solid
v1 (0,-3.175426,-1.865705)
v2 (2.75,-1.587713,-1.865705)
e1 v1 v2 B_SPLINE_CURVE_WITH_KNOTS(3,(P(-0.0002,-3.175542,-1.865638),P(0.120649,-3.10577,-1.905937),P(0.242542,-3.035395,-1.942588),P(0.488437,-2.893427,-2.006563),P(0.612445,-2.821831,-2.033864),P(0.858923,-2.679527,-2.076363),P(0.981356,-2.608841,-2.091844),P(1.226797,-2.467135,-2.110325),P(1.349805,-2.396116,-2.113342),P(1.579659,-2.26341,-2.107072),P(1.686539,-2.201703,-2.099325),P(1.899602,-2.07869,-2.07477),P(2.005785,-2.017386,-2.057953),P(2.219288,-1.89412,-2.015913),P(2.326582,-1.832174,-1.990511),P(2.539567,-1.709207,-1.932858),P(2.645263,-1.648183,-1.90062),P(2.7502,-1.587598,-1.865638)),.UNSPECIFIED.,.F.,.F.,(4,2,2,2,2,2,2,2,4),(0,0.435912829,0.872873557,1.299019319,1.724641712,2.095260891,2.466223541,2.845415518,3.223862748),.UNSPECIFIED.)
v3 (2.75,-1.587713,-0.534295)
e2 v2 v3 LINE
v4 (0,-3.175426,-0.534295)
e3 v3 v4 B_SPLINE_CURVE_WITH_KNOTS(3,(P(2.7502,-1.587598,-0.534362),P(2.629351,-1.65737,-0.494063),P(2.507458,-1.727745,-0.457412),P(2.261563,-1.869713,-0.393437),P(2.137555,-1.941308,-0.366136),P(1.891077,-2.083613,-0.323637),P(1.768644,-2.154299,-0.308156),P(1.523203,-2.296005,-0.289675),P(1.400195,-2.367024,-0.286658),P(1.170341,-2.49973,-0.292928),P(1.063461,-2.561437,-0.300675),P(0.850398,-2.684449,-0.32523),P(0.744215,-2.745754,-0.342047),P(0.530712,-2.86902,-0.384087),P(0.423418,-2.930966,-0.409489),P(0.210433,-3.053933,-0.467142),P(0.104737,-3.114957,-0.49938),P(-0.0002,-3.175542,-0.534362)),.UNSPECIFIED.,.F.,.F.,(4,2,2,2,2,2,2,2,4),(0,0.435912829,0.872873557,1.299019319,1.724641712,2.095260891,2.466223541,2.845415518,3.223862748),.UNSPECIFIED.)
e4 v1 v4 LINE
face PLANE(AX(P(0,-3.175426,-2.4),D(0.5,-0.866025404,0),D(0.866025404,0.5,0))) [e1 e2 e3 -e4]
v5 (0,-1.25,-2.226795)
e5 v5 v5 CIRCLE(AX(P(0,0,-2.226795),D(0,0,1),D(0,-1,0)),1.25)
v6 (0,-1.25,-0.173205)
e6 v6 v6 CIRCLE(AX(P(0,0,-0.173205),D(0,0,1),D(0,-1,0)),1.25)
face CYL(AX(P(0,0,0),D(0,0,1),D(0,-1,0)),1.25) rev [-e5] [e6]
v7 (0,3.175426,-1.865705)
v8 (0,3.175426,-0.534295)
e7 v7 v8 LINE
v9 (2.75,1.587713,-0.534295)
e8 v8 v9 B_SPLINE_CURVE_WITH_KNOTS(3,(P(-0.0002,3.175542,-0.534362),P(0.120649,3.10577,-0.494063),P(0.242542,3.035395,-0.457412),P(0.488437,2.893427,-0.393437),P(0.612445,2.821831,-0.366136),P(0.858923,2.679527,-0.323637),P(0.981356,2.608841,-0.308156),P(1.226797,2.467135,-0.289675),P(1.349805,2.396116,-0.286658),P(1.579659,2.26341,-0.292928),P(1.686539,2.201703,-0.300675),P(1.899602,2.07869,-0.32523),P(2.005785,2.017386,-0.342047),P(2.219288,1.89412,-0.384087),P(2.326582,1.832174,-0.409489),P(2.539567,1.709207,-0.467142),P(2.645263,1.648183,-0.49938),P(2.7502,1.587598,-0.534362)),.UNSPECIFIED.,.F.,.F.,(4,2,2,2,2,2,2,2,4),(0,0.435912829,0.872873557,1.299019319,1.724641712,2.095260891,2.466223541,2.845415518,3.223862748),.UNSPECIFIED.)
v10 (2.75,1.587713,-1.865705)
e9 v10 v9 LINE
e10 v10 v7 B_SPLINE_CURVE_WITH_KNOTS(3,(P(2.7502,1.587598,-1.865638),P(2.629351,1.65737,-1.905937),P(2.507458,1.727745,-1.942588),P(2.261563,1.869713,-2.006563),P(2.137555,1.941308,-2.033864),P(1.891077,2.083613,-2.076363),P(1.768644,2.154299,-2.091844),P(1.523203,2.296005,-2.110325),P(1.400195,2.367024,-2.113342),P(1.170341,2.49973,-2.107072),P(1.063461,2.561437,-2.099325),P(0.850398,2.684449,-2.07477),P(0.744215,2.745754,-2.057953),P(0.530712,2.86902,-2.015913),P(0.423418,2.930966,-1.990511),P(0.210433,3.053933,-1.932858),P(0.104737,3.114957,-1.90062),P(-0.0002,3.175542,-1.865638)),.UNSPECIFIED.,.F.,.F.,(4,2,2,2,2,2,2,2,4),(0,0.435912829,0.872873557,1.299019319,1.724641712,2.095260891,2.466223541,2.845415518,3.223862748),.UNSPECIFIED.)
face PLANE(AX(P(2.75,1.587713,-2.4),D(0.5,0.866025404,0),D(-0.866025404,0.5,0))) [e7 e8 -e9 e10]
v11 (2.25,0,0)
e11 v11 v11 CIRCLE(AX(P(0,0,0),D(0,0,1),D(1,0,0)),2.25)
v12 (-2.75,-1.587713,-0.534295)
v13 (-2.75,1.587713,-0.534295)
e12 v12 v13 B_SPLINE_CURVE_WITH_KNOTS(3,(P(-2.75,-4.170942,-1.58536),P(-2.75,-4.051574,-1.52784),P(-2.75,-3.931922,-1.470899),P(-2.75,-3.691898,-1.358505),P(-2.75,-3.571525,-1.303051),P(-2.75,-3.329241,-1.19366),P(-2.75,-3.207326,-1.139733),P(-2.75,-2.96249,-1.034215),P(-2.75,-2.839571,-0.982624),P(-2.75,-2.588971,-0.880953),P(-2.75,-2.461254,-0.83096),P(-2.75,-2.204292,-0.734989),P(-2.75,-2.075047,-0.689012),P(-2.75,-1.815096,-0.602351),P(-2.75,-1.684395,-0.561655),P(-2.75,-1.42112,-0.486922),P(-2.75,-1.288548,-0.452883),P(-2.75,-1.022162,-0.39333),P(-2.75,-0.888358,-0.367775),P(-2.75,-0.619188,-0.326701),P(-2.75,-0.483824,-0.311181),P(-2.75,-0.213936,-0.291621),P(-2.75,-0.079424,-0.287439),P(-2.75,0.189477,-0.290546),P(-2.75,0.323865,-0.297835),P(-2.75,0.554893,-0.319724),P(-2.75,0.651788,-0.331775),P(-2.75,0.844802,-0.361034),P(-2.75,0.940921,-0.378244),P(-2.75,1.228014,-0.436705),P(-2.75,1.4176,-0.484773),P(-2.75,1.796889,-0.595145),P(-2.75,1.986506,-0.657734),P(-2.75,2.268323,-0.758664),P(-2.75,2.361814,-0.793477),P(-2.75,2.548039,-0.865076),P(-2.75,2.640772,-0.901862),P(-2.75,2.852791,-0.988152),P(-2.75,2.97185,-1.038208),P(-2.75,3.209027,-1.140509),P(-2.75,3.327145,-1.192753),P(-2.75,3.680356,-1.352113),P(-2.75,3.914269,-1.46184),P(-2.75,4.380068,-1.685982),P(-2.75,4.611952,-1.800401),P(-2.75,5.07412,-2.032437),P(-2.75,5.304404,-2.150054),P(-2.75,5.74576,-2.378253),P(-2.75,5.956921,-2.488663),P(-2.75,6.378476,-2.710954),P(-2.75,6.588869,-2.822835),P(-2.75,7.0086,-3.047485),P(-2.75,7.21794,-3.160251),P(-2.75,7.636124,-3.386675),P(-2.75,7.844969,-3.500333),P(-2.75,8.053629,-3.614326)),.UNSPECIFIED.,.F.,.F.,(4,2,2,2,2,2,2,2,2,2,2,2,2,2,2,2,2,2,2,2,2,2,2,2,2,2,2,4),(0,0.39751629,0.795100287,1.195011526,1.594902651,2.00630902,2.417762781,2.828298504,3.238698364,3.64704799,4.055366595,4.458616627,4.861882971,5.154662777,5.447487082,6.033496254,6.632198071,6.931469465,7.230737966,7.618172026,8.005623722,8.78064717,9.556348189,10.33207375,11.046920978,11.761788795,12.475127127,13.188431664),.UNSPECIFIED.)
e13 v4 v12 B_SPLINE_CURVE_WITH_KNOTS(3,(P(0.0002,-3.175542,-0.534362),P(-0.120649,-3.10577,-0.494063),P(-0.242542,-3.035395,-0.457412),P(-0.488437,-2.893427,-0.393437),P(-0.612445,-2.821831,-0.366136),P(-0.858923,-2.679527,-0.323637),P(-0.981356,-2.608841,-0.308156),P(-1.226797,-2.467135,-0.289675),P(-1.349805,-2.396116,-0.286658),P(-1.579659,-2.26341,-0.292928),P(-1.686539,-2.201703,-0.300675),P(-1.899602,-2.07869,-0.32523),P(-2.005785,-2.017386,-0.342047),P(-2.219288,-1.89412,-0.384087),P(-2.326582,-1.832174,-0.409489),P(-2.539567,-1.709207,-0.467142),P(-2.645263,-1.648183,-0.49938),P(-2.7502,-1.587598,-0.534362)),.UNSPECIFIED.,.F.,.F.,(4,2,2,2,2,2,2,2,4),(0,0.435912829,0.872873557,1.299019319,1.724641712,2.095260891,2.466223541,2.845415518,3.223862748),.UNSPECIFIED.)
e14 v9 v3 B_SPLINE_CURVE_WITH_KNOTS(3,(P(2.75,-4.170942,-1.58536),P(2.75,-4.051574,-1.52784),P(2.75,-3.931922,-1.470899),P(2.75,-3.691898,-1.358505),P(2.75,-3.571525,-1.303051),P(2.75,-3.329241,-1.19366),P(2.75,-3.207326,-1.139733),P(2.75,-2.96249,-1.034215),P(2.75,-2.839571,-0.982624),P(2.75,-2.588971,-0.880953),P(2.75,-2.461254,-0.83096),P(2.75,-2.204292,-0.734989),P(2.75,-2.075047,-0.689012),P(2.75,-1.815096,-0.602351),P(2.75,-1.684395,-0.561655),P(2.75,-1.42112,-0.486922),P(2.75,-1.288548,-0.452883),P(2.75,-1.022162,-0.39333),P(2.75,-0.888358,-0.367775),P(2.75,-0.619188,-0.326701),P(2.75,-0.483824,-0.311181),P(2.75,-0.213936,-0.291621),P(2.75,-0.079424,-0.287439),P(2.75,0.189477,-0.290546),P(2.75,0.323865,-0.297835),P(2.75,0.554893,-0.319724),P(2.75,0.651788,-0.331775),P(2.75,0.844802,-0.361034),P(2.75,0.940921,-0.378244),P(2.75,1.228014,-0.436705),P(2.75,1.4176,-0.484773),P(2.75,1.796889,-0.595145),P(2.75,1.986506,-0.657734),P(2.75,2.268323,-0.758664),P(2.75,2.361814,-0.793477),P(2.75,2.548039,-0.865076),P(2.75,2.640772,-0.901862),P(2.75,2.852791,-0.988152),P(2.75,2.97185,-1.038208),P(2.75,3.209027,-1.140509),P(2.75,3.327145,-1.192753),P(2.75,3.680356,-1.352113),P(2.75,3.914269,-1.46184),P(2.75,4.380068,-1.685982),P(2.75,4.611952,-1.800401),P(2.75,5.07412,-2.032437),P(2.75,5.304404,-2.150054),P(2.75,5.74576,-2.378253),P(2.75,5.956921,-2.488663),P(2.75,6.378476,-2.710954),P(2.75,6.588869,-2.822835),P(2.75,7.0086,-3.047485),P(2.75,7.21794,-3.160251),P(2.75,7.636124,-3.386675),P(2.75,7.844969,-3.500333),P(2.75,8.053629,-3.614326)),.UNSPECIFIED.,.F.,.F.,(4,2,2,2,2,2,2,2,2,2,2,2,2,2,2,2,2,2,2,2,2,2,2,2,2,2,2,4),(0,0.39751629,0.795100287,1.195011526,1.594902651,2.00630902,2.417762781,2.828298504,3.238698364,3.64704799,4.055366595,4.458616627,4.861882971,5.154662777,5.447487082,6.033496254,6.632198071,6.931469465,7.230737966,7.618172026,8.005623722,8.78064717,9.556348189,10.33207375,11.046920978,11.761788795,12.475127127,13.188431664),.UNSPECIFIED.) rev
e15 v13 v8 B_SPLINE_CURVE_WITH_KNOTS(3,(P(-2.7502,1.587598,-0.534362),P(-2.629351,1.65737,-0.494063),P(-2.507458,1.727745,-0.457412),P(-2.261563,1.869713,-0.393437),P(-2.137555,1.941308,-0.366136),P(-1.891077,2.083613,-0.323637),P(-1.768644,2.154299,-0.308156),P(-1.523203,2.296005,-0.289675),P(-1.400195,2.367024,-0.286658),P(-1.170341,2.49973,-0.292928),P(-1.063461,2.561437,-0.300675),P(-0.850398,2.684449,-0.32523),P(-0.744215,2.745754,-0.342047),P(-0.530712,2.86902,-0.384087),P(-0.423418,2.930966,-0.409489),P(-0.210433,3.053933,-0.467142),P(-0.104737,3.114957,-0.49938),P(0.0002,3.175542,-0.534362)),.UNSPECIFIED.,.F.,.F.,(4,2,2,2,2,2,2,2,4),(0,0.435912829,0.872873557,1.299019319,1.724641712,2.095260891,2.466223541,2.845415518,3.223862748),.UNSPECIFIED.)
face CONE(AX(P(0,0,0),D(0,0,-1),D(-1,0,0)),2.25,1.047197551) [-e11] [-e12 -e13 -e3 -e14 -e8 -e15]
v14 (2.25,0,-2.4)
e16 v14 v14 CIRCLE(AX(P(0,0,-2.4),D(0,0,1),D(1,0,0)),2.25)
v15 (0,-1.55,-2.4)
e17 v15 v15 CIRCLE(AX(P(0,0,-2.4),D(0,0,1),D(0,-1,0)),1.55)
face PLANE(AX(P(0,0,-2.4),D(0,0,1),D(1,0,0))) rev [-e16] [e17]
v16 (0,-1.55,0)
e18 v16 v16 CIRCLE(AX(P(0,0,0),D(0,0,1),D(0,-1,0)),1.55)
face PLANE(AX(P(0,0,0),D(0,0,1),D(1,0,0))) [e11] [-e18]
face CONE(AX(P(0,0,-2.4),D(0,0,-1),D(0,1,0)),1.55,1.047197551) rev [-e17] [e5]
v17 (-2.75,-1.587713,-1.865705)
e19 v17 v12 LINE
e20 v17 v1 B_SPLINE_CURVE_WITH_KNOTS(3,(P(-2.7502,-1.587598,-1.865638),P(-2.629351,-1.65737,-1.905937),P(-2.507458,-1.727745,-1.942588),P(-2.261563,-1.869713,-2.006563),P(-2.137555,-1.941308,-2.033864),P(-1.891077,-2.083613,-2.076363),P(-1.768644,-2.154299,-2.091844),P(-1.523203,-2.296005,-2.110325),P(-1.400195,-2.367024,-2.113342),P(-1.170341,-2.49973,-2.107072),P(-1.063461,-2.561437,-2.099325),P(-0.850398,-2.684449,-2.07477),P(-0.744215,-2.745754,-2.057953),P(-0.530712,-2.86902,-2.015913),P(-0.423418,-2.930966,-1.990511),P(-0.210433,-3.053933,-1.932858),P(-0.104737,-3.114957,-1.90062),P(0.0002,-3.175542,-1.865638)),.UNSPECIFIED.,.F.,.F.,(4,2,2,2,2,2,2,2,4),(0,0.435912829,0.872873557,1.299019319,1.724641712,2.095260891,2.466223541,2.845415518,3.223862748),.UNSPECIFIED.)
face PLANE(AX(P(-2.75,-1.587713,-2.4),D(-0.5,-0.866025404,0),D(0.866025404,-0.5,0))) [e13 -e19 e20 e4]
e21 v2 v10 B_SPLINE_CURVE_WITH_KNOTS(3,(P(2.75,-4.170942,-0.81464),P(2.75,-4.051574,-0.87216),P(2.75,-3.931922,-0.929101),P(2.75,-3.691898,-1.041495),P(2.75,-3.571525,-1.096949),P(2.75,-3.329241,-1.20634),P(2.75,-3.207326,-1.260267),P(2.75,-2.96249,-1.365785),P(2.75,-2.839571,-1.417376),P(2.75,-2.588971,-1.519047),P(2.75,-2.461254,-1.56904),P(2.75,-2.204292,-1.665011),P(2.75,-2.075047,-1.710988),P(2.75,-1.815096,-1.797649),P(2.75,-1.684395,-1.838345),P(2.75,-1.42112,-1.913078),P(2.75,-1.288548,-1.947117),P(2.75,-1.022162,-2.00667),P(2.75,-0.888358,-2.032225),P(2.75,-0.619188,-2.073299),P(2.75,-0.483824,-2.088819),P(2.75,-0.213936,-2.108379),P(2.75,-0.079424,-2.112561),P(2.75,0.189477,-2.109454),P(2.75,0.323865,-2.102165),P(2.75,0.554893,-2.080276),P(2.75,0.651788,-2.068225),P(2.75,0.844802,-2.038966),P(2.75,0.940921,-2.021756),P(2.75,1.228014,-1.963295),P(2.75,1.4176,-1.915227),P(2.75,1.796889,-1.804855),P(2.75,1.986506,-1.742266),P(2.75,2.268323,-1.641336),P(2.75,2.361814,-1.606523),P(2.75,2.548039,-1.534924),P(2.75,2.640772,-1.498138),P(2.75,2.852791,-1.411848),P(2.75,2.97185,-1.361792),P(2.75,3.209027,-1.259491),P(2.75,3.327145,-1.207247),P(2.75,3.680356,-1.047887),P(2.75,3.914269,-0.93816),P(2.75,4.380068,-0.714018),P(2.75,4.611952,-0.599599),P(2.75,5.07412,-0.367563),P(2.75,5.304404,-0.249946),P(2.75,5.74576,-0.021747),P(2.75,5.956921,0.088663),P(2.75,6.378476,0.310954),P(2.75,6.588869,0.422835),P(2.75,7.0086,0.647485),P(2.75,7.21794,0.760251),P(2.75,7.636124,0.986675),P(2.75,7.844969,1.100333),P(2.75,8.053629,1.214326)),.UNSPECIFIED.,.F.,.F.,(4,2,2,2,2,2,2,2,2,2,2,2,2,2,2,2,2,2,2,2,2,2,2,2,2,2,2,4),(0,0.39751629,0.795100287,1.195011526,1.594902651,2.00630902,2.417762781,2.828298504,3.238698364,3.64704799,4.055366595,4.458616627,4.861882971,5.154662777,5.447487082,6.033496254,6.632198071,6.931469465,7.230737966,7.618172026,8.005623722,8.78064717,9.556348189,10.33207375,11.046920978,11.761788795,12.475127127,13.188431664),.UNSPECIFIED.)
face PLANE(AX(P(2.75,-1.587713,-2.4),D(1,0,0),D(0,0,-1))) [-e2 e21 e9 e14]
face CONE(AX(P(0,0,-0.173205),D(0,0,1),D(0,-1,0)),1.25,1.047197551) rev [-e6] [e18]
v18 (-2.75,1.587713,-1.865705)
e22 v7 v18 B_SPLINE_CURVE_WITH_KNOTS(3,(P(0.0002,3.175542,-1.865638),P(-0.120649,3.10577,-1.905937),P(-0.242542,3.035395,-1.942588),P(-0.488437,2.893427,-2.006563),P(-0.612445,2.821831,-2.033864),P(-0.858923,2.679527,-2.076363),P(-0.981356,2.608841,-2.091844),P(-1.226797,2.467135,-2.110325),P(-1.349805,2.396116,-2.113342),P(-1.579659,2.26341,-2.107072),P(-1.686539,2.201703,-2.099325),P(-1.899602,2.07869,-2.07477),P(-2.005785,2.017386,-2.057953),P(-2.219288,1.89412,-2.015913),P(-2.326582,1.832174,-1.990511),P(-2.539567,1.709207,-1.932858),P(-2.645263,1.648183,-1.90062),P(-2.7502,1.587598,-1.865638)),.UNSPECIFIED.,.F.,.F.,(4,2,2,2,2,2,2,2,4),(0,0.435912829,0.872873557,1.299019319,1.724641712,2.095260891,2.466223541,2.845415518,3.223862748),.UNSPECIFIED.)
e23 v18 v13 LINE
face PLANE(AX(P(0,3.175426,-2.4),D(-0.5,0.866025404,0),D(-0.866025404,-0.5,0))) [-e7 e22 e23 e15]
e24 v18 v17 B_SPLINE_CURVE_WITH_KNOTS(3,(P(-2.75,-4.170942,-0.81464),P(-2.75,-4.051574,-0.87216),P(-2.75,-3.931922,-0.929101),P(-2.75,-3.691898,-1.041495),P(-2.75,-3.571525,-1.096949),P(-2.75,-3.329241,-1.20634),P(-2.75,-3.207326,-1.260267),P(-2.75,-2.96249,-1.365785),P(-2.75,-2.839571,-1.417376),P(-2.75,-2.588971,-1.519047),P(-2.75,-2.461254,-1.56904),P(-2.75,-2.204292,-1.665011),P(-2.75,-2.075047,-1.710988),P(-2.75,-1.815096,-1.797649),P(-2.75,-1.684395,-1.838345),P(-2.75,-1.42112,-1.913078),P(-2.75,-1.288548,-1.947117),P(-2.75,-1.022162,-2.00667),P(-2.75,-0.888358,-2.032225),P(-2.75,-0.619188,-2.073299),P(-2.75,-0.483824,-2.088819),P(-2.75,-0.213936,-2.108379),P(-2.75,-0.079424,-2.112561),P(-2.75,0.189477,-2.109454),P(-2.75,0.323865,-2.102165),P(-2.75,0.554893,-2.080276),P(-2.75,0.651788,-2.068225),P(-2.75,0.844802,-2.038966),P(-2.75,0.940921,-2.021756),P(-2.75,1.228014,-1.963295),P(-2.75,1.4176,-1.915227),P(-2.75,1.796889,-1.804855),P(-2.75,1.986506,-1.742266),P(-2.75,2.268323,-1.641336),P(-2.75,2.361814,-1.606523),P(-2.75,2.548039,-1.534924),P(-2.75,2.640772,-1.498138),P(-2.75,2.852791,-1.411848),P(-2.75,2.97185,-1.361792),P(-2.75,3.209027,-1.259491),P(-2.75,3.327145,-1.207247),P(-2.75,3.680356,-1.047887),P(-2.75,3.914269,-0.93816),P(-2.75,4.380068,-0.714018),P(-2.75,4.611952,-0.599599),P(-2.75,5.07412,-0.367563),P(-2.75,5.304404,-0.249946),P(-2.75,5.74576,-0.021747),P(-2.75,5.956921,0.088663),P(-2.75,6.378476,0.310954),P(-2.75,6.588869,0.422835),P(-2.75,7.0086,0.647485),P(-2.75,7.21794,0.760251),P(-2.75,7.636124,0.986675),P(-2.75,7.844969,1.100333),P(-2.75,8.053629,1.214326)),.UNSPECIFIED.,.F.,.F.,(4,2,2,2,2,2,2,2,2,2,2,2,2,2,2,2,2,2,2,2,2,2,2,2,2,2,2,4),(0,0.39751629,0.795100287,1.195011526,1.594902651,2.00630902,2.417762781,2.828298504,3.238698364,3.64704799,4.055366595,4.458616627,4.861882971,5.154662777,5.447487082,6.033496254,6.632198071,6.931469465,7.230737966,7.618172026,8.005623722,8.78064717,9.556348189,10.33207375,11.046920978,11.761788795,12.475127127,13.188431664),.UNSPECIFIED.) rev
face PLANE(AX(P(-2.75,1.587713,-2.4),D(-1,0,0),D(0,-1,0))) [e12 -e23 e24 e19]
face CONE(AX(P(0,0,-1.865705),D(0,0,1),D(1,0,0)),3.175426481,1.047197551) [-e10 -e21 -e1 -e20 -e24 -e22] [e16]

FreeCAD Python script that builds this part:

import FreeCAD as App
import Part
import Sketcher

V = App.Vector
Q = App.Units.Quantity

doc = App.newDocument("Part")
body = doc.addObject("PartDesign::Body", "Body")

# Sketch on XY plane
sketch1 = body.newObject("Sketcher::SketchObject", "Sketch")
sketch1.AttachmentSupport = (doc.getObject("XY_Plane"), [""])
sketch1.MapMode = "FlatFace"
sketch1.addGeometry(Part.LineSegment(V(0, 3.2, 0), V(-2.8, 1.6, 0)), False)
sketch1.addGeometry(Part.LineSegment(V(-2.8, 1.6, 0), V(-2.8, -1.6, 0)), False)
sketch1.addGeometry(Part.LineSegment(V(-2.8, -1.6, 0), V(0, -3.2, 0)), False)
sketch1.addGeometry(Part.LineSegment(V(0, -3.2, 0), V(2.8, -1.6, 0)), False)
sketch1.addGeometry(Part.LineSegment(V(2.8, -1.6, 0), V(2.8, 1.6, 0)), False)
sketch1.addGeometry(Part.LineSegment(V(2.8, 1.6, 0), V(0, 3.2, 0)), False)
sketch1.addConstraint(Sketcher.Constraint("Coincident", 0, 2, 1, 1))
sketch1.addConstraint(Sketcher.Constraint("Coincident", 1, 2, 2, 1))
sketch1.addConstraint(Sketcher.Constraint("Coincident", 2, 2, 3, 1))
sketch1.addConstraint(Sketcher.Constraint("Coincident", 3, 2, 4, 1))
sketch1.addConstraint(Sketcher.Constraint("Coincident", 4, 2, 5, 1))
sketch1.addConstraint(Sketcher.Constraint("Coincident", 5, 2, 0, 1))
sketch1.addConstraint(Sketcher.Constraint("Vertical", 1))
sketch1.addConstraint(Sketcher.Constraint("Vertical", 4))
sketch1.addConstraint(Sketcher.Constraint("Symmetric", 0, 2, 3, 2, -1, 1))
sketch1.addConstraint(Sketcher.Constraint("Symmetric", 2, 2, 5, 2, -1, 1))
sketch1.addConstraint(Sketcher.Constraint("PointOnObject", 2, 2, -2))
sketch1.addConstraint(Sketcher.Constraint("Parallel", 2, 5))
sketch1.addConstraint(Sketcher.Constraint("Horizontal", 1, 2, 3, 2))
sketch1.addConstraint(Sketcher.Constraint("Angle", 0, Q("-150 deg")))
sketch1.addConstraint(Sketcher.Constraint("DistanceX", 1, 2, 3, 2, 5.5))
sketch1.addConstraint(Sketcher.Constraint("DistanceY", 1, 2, 1, 1, 3.175426))
pad1 = body.newObject("PartDesign::Pad", "Pad")
pad1.Profile = sketch1
pad1.Length = 2.4
pad1.Reversed = True

# Sketch on YZ plane
sketch2 = body.newObject("Sketcher::SketchObject", "Sketch001")
sketch2.AttachmentSupport = (doc.getObject("YZ_Plane"), [""])
sketch2.MapMode = "FlatFace"
sketch2.addGeometry(Part.LineSegment(V(3.2, -2.4, 0), V(3.2, -1.9, 0)), False)
sketch2.addGeometry(Part.LineSegment(V(3.2, -1.9, 0), V(2.2, -2.4, 0)), False)
sketch2.addGeometry(Part.LineSegment(V(2.2, -2.4, 0), V(3.2, -2.4, 0)), False)
sketch2.addGeometry(Part.LineSegment(V(3.2, -0.5, 0), V(3.2, 0, 0)), False)
sketch2.addGeometry(Part.LineSegment(V(3.2, 0, 0), V(2.2, 0, 0)), False)
sketch2.addGeometry(Part.LineSegment(V(2.2, 0, 0), V(3.2, -0.5, 0)), False)
sketch2.addConstraint(Sketcher.Constraint("Coincident", 0, 2, 1, 1))
sketch2.addConstraint(Sketcher.Constraint("Coincident", 1, 2, 2, 1))
sketch2.addConstraint(Sketcher.Constraint("Coincident", 2, 2, 0, 1))
sketch2.addConstraint(Sketcher.Constraint("Coincident", 3, 2, 4, 1))
sketch2.addConstraint(Sketcher.Constraint("Coincident", 4, 2, 5, 1))
sketch2.addConstraint(Sketcher.Constraint("Coincident", 5, 2, 3, 1))
sketch2.addConstraint(Sketcher.Constraint("Vertical", 0))
sketch2.addConstraint(Sketcher.Constraint("Horizontal", 2))
sketch2.addConstraint(Sketcher.Constraint("Vertical", 3))
sketch2.addConstraint(Sketcher.Constraint("Horizontal", 4))
sketch2.addConstraint(Sketcher.Constraint("PointOnObject", 3, 2, -1))
sketch2.addConstraint(Sketcher.Constraint("Vertical", 2, 2, 3, 2))
sketch2.addConstraint(Sketcher.Constraint("Vertical", 1, 2, 4, 2))
sketch2.addConstraint(Sketcher.Constraint("Equal", 0, 3))
sketch2.addConstraint(Sketcher.Constraint("Angle", 1, Q("-150 deg")))
sketch2.addConstraint(Sketcher.Constraint("DistanceY", 1, 2, -1, 1, 2.4))
sketch2.addConstraint(Sketcher.Constraint("DistanceX", -1, 1, 1, 2, 2.25))
sketch2.addConstraint(Sketcher.Constraint("Distance", 1, 1.06859))
groove = body.newObject("PartDesign::Groove", "Groove")
groove.Profile = sketch2
groove.ReferenceAxis = (sketch2, ["V_Axis"])
groove.Angle = 360

# Sketch on YZ plane
sketch3 = body.newObject("Sketcher::SketchObject", "Sketch002")
sketch3.AttachmentSupport = (doc.getObject("YZ_Plane"), [""])
sketch3.MapMode = "FlatFace"
sketch3.addGeometry(Part.LineSegment(V(1.55, 0, 0), V(0, 0, 0)), False)
sketch3.addGeometry(Part.LineSegment(V(0, 0, 0), V(0, -2.4, 0)), False)
sketch3.addGeometry(Part.LineSegment(V(0, -2.4, 0), V(1.55, -2.4, 0)), False)
sketch3.addGeometry(Part.LineSegment(V(1.55, -2.4, 0), V(1.25, -2.23, 0)), False)
sketch3.addGeometry(Part.LineSegment(V(1.25, -2.23, 0), V(1.25, -0.17, 0)), False)
sketch3.addGeometry(Part.LineSegment(V(1.25, -0.17, 0), V(1.55, 0, 0)), False)
sketch3.addConstraint(Sketcher.Constraint("Coincident", 0, 2, 1, 1))
sketch3.addConstraint(Sketcher.Constraint("Coincident", 1, 2, 2, 1))
sketch3.addConstraint(Sketcher.Constraint("Coincident", 2, 2, 3, 1))
sketch3.addConstraint(Sketcher.Constraint("Coincident", 3, 2, 4, 1))
sketch3.addConstraint(Sketcher.Constraint("Coincident", 4, 2, 5, 1))
sketch3.addConstraint(Sketcher.Constraint("Coincident", 5, 2, 0, 1))
sketch3.addConstraint(Sketcher.Constraint("Horizontal", 0))
sketch3.addConstraint(Sketcher.Constraint("Vertical", 1))
sketch3.addConstraint(Sketcher.Constraint("Horizontal", 2))
sketch3.addConstraint(Sketcher.Constraint("Vertical", 4))
sketch3.addConstraint(Sketcher.Constraint("Coincident", 0, 2, -1, 1))
sketch3.addConstraint(Sketcher.Constraint("Vertical", 2, 2, 5, 2))
sketch3.addConstraint(Sketcher.Constraint("Equal", 3, 5))
sketch3.addConstraint(Sketcher.Constraint("Angle", 3, Q("150 deg")))
sketch3.addConstraint(Sketcher.Constraint("DistanceY", 1, 2, 1, 1, 2.4))
sketch3.addConstraint(Sketcher.Constraint("DistanceX", 0, 2, 0, 1, 1.55))
sketch3.addConstraint(Sketcher.Constraint("DistanceX", 3, 2, 2, 2, 0.3))
groove2 = body.newObject("PartDesign::Groove", "Groove001")
groove2.Profile = sketch3
groove2.ReferenceAxis = (sketch3, ["V_Axis"])
groove2.Angle = 360

doc.recompute()
